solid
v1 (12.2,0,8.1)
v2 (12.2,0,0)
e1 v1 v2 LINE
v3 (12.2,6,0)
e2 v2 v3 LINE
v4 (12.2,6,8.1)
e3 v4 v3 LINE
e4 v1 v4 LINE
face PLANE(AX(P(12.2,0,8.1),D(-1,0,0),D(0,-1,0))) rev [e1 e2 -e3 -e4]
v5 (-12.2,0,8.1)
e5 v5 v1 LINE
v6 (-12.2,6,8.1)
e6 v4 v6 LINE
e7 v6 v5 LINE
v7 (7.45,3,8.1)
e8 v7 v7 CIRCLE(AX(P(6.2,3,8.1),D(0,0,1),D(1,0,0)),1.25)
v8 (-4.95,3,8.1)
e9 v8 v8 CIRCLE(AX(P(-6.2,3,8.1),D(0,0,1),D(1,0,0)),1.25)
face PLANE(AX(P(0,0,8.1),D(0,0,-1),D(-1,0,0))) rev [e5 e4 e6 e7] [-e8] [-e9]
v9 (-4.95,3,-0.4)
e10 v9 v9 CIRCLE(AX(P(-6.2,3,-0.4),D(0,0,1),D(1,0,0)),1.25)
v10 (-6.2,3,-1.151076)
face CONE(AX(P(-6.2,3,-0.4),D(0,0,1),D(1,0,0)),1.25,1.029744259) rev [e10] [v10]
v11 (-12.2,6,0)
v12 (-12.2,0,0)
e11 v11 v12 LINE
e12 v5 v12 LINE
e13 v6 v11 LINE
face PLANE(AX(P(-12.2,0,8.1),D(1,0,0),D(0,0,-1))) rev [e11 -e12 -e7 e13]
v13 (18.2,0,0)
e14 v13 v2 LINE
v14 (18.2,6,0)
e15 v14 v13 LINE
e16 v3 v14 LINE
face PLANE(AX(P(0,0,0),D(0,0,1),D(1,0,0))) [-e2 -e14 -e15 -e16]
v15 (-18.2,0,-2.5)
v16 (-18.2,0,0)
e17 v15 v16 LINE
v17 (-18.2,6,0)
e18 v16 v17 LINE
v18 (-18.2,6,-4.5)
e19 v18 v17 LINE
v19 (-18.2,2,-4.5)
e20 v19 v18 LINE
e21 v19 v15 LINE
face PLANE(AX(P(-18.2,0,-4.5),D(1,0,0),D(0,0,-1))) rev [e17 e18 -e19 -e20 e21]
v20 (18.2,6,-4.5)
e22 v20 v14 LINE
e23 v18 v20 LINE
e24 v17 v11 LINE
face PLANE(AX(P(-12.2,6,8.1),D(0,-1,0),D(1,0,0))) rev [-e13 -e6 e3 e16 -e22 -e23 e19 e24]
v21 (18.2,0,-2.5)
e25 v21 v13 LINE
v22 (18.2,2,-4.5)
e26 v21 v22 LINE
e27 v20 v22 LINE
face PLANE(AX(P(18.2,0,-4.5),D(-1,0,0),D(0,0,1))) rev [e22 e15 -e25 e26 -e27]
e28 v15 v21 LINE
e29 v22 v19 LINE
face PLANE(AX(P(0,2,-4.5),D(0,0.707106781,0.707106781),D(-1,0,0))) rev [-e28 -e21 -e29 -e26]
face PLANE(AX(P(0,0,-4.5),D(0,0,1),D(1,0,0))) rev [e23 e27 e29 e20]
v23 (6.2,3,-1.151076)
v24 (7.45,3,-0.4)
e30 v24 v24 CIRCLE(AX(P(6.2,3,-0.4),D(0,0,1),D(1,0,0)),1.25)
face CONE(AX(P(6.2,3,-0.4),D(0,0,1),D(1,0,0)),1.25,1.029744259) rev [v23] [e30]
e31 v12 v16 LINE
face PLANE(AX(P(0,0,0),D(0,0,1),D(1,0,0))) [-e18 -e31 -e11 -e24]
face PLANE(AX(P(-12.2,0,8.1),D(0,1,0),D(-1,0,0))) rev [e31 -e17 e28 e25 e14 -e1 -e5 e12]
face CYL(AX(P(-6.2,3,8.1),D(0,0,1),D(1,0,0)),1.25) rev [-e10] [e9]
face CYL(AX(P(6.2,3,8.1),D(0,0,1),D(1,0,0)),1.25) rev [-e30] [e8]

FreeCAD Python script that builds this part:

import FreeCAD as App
import Part
import Sketcher
from FreeCAD import Vector


def edges_at(feature, points):
    """Names of the edges that pass closest to the given points."""
    edges = feature.Shape.Edges
    near = lambda p: min(range(len(edges)), key=lambda i: edges[i].distToShape(Part.Vertex(*p))[0])
    return sorted({f"Edge{near(p) + 1}" for p in points})


def add_polygon(sketch, points):
    """Adds a closed chain of lines whose ends are joined by coincident constraints."""
    first, n = sketch.GeometryCount, len(points)
    for a, b in zip(points, points[1:] + points[:1]):
        sketch.addGeometry(Part.LineSegment(App.Vector(*a, 0), App.Vector(*b, 0)), False)
    for i in range(n):
        sketch.addConstraint(Sketcher.Constraint("Coincident", first + i, 2, first + (i + 1) % n, 1))

doc = App.newDocument("Part")
body = doc.addObject("PartDesign::Body", "Body")

sketch1 = doc.addObject("Sketcher::SketchObject", "Sketch")
body.addObject(sketch1)
sketch1.AttachmentSupport = (doc.XY_Plane, [""])
sketch1.MapMode = "FlatFace"
add_polygon(sketch1, [(-12.2, 6), (-12.2, 0), (12.2, 0), (12.2, 6)])
sketch1.addConstraint([
    Sketcher.Constraint("Vertical", 0),
    Sketcher.Constraint("Horizontal", 1),
    Sketcher.Constraint("Vertical", 2),
    Sketcher.Constraint("Horizontal", 3),
    Sketcher.Constraint("Symmetric", 0, 2, 1, 2, -1, 1),
    Sketcher.Constraint("DistanceY", 0, 2, 0, 1, 6.0),
    Sketcher.Constraint("DistanceX", 1, 1, 1, 2, 24.4),
])
pad1 = doc.addObject("PartDesign::Pad", "Pad")
body.addObject(pad1)
pad1.Profile = sketch1
pad1.Length = 8.1

sketch2 = doc.addObject("Sketcher::SketchObject", "Sketch001")
body.addObject(sketch2)
sketch2.AttachmentSupport = (doc.XY_Plane, [""])
sketch2.MapMode = "FlatFace"
add_polygon(sketch2, [(18.2, 6), (18.2, 0), (-18.2, 0), (-18.2, 6)])
sketch2.addConstraint([
    Sketcher.Constraint("Vertical", 0),
    Sketcher.Constraint("Horizontal", 1),
    Sketcher.Constraint("Vertical", 2),
    Sketcher.Constraint("Horizontal", 3),
    Sketcher.Constraint("Symmetric", 0, 2, 1, 2, -1, 1),
    Sketcher.Constraint("DistanceY", 0, 2, 0, 1, 6.0),
    Sketcher.Constraint("DistanceX", 1, 2, 1, 1, 36.4),
])
pad2 = doc.addObject("PartDesign::Pad", "Pad001")
body.addObject(pad2)
pad2.Profile = sketch2
pad2.Length = 4.5
pad2.Reversed = True
doc.recompute()

chamfer = doc.addObject("PartDesign::Chamfer", "Chamfer")
body.addObject(chamfer)
chamfer.Base = (pad2, edges_at(pad2, [(0, 0, -4.5)]))
chamfer.Size = 2

sketch3 = doc.addObject("Sketcher::SketchObject", "Sketch002")
body.addObject(sketch3)
sketch3.AttachmentSupport = (doc.XY_Plane, [""])
sketch3.MapMode = "FlatFace"
sketch3.AttachmentOffset = App.Placement(Vector(0, 0, 8.1), App.Rotation())
sketch3.addGeometry([
    Part.Circle(Vector(-6.2, 3, 0), Vector(0, 0, 1), 1.25),
    Part.Circle(Vector(6.2, 3, 0), Vector(0, 0, 1), 1.25),
], False)
sketch3.addConstraint([
    Sketcher.Constraint("Equal", 0, 1),
    Sketcher.Constraint("Symmetric", 0, 3, 1, 3, -2),
    Sketcher.Constraint("Diameter", 0, 2.5),
    Sketcher.Constraint("DistanceY", -1, 1, 0, 3, 3.0),
    Sketcher.Constraint("DistanceX", 0, 3, -1, 1, 6.2),
])
doc.recompute()
hole = doc.addObject("PartDesign::Hole", "Hole")
body.addObject(hole)
hole.Profile = sketch3
hole.ThreadType = "None"
hole.Diameter = 2.5
hole.DepthType = "Dimension"
hole.Depth = 8.5
hole.DrillPoint = "Angled"
hole.DrillPointAngle = 118

doc.recompute()
